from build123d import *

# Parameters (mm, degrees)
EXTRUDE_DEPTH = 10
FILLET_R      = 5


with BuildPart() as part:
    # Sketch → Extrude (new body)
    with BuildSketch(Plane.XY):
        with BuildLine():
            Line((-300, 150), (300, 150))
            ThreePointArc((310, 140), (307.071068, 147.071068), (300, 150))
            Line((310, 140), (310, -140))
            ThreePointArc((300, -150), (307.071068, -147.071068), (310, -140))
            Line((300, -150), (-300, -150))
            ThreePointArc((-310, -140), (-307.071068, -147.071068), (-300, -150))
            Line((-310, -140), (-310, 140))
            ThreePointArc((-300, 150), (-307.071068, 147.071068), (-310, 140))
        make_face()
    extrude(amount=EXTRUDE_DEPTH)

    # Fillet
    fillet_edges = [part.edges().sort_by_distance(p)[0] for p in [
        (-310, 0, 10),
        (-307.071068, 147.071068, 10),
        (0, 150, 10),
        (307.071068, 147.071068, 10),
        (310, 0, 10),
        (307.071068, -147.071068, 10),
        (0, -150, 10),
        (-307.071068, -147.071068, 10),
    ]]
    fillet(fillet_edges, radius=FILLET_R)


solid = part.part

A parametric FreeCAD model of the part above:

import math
import FreeCAD as App
import Part
import Sketcher
from FreeCAD import Vector
Q = App.Units.Quantity


def edges_at(feature, points):
    """Names of the edges that pass closest to the given points."""
    edges = feature.Shape.Edges
    near = lambda p: min(range(len(edges)), key=lambda i: edges[i].distToShape(Part.Vertex(*p))[0])
    return sorted({f"Edge{near(p) + 1}" for p in points})

doc = App.newDocument("Part")
params = doc.addObject("Spreadsheet::Sheet", "Params")
for row, (alias, value) in enumerate([
    ("sketch1_radius", "9.999999 mm"),
    ("sketch1_width", "600 mm"),
    ("sketch1_height", "280 mm"),
    ("pad1_length", "10 mm"),
    ("fillet_radius", "5 mm"),
], start=1):
    params.set(f"A{row}", alias)
    params.set(f"B{row}", "=" + value)
    params.setAlias(f"B{row}", alias)

body = doc.addObject("PartDesign::Body", "Body")

sketch1 = body.newObject("Sketcher::SketchObject", "Sketch")
sketch1.AttachmentSupport = (doc.getObject("XY_Plane"), [""])
sketch1.MapMode = "FlatFace"
sketch1.addGeometry([
    Part.LineSegment(Vector(300, 150, 0), Vector(-300, 150, 0)),
    Part.ArcOfCircle(Part.Circle(Vector(-300, 140, 0), Vector(0, 0, 1), 10), math.radians(90), math.radians(180)),
    Part.LineSegment(Vector(-310, 140, 0), Vector(-310, -140, 0)),
    Part.ArcOfCircle(Part.Circle(Vector(-300, -140, 0), Vector(0, 0, 1), 10), math.radians(180), math.radians(270)),
    Part.LineSegment(Vector(-300, -150, 0), Vector(300, -150, 0)),
    Part.ArcOfCircle(Part.Circle(Vector(300, -140, 0), Vector(0, 0, 1), 10), math.radians(-90), math.radians(0)),
    Part.LineSegment(Vector(310, -140, 0), Vector(310, 140, 0)),
    Part.ArcOfCircle(Part.Circle(Vector(300, 140, 0), Vector(0, 0, 1), 10), math.radians(0), math.radians(90)),
], False)
sketch1.addConstraint([
    Sketcher.Constraint("Tangent", 0, 2, 1, 1),
    Sketcher.Constraint("Tangent", 1, 2, 2, 1),
    Sketcher.Constraint("Tangent", 2, 2, 3, 1),
    Sketcher.Constraint("Tangent", 3, 2, 4, 1),
    Sketcher.Constraint("Tangent", 4, 2, 5, 1),
    Sketcher.Constraint("Tangent", 5, 2, 6, 1),
    Sketcher.Constraint("Tangent", 6, 2, 7, 1),
    Sketcher.Constraint("Tangent", 7, 2, 0, 1),
    Sketcher.Constraint("Horizontal", 0),
    Sketcher.Constraint("Vertical", 2),
    Sketcher.Constraint("Horizontal", 4),
    Sketcher.Constraint("Vertical", 6),
    Sketcher.Constraint("Equal", 1, 3),
    Sketcher.Constraint("Equal", 3, 5),
    Sketcher.Constraint("Equal", 5, 7),
    Sketcher.Constraint("Symmetric", 1, 3, 5, 3, -1, 1),
    Sketcher.Constraint("Radius", 1, Q("9.999999 mm")),
    Sketcher.Constraint("DistanceX", 0, 2, 0, 1, Q("600 mm")),
    Sketcher.Constraint("DistanceY", 2, 2, 2, 1, Q("280 mm")),
])
sketch1.setExpression("Constraints[16]", "Params.sketch1_radius")
sketch1.setExpression("Constraints[17]", "Params.sketch1_width")
sketch1.setExpression("Constraints[18]", "Params.sketch1_height")
pad1 = body.newObject("PartDesign::Pad", "Pad")
pad1.Profile = sketch1
pad1.setExpression("Length", "Params.pad1_length")
doc.recompute()

fillet = body.newObject("PartDesign::Fillet", "Fillet")
fillet.Base = (pad1, edges_at(pad1, [
    (-310, 0, 10),
    (-307.071, 147.071, 10),
    (0, 150, 10),
    (307.071, 147.071, 10),
    (310, 0, 10),
    (307.071, -147.071, 10),
    (0, -150, 10),
    (-307.071, -147.071, 10),
]))
fillet.setExpression("Radius", "Params.fillet_radius")

doc.recompute()
